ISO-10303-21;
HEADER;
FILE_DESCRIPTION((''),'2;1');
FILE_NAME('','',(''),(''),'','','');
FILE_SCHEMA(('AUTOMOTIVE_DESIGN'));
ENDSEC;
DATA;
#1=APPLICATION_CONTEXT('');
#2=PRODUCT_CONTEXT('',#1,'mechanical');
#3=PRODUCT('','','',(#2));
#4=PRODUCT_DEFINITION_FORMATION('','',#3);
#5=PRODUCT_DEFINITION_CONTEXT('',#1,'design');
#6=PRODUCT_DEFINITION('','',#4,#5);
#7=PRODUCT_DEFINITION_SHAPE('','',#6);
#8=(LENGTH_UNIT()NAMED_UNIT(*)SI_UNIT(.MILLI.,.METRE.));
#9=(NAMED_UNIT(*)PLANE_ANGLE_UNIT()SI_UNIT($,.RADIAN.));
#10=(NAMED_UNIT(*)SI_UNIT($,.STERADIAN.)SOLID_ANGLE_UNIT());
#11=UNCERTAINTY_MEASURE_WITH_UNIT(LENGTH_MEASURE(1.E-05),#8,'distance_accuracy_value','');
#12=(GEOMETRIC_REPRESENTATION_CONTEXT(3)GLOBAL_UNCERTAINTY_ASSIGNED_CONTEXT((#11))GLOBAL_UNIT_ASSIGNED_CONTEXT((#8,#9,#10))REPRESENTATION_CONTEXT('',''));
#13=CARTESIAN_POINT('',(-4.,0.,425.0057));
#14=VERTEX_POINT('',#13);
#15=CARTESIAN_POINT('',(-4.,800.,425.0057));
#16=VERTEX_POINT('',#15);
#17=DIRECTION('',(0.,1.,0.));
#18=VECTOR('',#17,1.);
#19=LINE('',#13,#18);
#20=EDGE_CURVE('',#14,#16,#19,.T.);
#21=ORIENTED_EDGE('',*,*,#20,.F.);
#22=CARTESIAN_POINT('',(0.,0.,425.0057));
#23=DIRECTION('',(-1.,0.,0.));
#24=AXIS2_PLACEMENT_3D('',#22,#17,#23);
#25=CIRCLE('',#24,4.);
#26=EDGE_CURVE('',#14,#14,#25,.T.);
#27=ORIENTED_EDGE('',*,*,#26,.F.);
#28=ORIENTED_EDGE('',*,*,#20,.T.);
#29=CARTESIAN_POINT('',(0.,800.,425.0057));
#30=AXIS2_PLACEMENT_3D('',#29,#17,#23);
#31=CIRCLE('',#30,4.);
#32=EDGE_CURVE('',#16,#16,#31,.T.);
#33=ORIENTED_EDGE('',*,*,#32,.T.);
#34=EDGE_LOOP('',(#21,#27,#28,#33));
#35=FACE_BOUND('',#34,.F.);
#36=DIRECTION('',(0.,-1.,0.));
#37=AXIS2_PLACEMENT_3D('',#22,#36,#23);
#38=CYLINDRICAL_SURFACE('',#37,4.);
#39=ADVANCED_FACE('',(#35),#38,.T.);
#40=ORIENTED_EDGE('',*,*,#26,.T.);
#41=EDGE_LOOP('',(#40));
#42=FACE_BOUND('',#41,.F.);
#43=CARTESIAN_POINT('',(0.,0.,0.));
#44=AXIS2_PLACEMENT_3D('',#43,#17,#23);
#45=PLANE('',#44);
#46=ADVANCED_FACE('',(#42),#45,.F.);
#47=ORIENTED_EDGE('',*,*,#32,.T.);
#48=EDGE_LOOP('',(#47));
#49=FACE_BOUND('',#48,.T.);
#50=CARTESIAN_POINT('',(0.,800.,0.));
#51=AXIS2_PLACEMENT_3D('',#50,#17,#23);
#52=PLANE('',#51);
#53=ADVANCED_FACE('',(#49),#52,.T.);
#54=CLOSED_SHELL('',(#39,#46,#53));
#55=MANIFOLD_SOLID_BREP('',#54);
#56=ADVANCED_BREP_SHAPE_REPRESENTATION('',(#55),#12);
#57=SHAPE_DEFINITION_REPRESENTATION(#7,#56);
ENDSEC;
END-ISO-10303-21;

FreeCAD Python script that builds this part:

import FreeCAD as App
import Part
import Sketcher

V = App.Vector

doc = App.newDocument("Part")
body = doc.addObject("PartDesign::Body", "Body")

sketch1 = body.newObject("Sketcher::SketchObject", "Sketch")
sketch1.AttachmentSupport = (doc.getObject("XZ_Plane"), [""])
sketch1.MapMode = "FlatFace"
sketch1.addGeometry(Part.Circle(V(0, 425.0057, 0), V(0, 0, 1), 4), False)
sketch1.addConstraint(Sketcher.Constraint("PointOnObject", 0, 3, -2))
sketch1.addConstraint(Sketcher.Constraint("Diameter", 0, 8.0))
sketch1.addConstraint(Sketcher.Constraint("DistanceY", -1, 1, 0, 3, 425.0057))
pad1 = body.newObject("PartDesign::Pad", "Pad")
pad1.Profile = sketch1
pad1.Length = 800
pad1.Reversed = True

doc.recompute()
